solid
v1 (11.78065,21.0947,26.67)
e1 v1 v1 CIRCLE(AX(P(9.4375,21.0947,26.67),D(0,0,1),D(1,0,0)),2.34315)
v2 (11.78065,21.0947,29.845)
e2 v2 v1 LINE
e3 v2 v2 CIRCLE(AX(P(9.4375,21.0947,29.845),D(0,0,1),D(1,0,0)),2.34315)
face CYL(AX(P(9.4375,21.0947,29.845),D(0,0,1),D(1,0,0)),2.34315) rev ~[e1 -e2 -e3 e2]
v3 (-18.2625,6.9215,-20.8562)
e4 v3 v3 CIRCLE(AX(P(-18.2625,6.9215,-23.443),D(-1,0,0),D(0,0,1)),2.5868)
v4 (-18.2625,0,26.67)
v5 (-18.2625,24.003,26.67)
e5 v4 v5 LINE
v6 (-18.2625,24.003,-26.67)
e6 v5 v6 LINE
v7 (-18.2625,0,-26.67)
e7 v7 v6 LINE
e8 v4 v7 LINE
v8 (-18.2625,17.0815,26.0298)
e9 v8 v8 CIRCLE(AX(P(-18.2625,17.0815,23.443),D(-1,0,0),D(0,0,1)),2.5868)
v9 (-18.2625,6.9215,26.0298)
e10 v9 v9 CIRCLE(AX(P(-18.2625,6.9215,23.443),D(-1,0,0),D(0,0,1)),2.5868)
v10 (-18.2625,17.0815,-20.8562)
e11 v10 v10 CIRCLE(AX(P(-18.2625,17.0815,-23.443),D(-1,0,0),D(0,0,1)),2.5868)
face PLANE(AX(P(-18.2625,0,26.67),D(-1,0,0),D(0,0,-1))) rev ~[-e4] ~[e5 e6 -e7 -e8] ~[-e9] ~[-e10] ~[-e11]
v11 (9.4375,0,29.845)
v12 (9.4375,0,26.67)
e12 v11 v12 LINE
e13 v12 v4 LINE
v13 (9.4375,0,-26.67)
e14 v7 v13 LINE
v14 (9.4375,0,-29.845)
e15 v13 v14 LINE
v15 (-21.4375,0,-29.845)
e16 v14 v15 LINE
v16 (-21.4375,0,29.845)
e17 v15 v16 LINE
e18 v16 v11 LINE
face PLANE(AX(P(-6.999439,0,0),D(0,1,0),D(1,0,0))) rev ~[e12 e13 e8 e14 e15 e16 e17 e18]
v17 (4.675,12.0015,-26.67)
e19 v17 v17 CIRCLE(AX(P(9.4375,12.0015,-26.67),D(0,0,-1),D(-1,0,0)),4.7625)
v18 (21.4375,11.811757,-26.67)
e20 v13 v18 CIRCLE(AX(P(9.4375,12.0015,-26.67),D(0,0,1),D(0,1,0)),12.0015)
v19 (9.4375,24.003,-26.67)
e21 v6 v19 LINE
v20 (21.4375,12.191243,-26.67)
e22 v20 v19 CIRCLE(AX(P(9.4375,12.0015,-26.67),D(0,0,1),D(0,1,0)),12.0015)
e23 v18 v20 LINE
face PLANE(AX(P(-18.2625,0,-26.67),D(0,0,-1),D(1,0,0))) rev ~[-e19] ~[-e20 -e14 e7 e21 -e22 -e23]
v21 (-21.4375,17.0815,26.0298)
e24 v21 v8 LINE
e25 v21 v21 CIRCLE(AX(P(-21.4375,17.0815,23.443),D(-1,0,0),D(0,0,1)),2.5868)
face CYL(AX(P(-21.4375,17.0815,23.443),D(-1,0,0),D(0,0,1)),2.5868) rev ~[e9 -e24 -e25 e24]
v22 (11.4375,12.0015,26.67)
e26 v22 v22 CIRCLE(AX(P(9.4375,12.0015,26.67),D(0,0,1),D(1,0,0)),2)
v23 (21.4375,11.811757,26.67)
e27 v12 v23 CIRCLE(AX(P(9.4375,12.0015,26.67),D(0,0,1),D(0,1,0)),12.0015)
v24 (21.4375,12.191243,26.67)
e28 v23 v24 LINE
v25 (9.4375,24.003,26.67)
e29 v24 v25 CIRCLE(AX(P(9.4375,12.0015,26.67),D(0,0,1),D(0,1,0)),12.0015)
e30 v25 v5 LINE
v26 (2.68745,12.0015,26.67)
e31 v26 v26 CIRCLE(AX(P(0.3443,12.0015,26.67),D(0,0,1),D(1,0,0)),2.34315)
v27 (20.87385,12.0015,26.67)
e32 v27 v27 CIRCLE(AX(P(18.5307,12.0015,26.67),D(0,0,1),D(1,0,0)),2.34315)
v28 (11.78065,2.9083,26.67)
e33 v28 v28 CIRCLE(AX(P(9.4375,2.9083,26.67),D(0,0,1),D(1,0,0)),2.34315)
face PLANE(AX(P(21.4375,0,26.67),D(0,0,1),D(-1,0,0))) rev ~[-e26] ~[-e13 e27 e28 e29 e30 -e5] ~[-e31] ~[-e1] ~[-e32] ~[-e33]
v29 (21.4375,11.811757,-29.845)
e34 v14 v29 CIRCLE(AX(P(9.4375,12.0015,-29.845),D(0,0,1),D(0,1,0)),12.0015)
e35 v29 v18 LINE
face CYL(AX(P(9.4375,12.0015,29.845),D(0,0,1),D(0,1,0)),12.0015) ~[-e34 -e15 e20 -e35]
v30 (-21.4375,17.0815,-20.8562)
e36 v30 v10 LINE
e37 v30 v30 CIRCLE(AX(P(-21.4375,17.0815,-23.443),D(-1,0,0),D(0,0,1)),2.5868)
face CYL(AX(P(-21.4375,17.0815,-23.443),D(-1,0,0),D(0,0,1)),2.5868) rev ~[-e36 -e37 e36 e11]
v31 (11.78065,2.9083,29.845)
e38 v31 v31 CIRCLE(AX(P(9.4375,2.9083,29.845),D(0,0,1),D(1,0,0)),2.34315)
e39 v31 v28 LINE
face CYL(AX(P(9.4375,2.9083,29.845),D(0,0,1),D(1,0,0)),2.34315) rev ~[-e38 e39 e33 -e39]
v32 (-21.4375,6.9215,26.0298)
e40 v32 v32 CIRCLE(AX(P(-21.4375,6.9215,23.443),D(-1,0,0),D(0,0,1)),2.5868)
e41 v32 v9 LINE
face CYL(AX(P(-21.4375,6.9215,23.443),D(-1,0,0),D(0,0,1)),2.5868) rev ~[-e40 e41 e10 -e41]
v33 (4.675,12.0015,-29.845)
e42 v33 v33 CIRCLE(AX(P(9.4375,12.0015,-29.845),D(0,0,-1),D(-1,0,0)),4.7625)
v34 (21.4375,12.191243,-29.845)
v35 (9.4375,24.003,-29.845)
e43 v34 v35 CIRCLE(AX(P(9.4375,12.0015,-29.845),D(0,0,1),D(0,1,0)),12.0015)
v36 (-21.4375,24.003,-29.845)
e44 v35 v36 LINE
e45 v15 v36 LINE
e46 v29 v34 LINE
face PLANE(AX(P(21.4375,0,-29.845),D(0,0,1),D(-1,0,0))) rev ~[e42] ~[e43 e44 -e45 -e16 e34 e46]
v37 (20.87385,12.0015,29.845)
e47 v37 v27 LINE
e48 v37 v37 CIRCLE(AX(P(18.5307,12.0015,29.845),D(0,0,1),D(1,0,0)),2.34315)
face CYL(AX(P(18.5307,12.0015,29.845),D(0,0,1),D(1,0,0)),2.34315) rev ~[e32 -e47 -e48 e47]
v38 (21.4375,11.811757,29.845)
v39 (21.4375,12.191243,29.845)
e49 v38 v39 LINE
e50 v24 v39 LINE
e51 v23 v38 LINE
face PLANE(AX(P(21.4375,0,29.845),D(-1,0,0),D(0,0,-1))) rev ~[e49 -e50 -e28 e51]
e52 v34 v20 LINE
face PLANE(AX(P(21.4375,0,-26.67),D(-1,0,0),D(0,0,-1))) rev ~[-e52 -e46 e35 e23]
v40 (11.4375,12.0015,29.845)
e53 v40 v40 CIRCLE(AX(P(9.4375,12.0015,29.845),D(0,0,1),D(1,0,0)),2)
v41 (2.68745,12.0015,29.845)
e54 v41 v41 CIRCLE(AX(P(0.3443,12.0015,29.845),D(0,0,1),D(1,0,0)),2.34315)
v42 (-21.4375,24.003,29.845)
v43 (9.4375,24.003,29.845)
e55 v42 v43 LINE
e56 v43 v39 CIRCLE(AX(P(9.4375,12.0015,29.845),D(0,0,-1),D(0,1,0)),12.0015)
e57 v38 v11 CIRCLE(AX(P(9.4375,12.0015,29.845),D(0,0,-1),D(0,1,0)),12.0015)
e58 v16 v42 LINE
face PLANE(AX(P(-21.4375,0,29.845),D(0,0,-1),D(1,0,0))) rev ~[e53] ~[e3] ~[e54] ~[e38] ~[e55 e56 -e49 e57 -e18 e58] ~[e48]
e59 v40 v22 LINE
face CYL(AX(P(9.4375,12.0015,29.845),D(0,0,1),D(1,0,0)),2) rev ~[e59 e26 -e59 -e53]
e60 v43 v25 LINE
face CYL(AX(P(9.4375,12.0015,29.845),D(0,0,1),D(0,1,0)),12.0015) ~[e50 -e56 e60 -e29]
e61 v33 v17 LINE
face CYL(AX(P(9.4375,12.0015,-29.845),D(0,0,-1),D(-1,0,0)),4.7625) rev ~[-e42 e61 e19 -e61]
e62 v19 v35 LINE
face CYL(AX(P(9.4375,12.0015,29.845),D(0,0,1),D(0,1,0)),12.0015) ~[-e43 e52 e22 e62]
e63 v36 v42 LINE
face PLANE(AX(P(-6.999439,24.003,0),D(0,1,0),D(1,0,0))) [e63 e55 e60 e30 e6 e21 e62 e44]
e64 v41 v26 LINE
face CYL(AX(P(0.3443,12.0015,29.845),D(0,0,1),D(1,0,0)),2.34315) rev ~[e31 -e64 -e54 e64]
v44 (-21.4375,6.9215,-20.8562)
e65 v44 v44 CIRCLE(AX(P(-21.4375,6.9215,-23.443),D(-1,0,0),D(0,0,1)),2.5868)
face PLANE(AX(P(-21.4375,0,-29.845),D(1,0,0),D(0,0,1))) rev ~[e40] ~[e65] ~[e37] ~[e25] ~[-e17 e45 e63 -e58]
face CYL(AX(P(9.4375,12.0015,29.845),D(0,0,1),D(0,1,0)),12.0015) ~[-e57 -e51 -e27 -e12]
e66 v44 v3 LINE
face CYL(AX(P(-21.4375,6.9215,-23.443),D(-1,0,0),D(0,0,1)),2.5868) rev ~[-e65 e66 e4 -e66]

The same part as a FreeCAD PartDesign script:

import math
import FreeCAD as App
import Part
import Sketcher

V = App.Vector
Q = App.Units.Quantity


def add_polygon(sketch, points):
    """Adds a closed chain of lines whose ends are joined by coincident constraints."""
    first, n = sketch.GeometryCount, len(points)
    for a, b in zip(points, points[1:] + points[:1]):
        sketch.addGeometry(Part.LineSegment(App.Vector(*a, 0), App.Vector(*b, 0)), False)
    for i in range(n):
        sketch.addConstraint(Sketcher.Constraint("Coincident", first + i, 2, first + (i + 1) % n, 1))

doc = App.newDocument("Part")
body = doc.addObject("PartDesign::Body", "Body")

# Sketch on XZ plane
sketch1 = body.newObject("Sketcher::SketchObject", "Sketch")
sketch1.AttachmentSupport = (doc.getObject("XZ_Plane"), [""])
sketch1.MapMode = "FlatFace"
add_polygon(sketch1, [(-21.4375, 29.845), (21.4375, 29.845), (21.4375, 26.67), (-18.2625, 26.67), (-18.2625, -26.67), (21.4375, -26.67), (21.4375, -29.845), (-21.4375, -29.845)])  # lines 0-7
sketch1.addConstraint(Sketcher.Constraint("Horizontal", 0))
sketch1.addConstraint(Sketcher.Constraint("Vertical", 1))
sketch1.addConstraint(Sketcher.Constraint("Horizontal", 2))
sketch1.addConstraint(Sketcher.Constraint("Vertical", 3))
sketch1.addConstraint(Sketcher.Constraint("Horizontal", 4))
sketch1.addConstraint(Sketcher.Constraint("Vertical", 5))
sketch1.addConstraint(Sketcher.Constraint("Horizontal", 6))
sketch1.addConstraint(Sketcher.Constraint("Vertical", 7))
sketch1.addConstraint(Sketcher.Constraint("Symmetric", 0, 2, 6, 2, -1, 1))
sketch1.addConstraint(Sketcher.Constraint("Symmetric", 1, 2, 4, 2, -1))
sketch1.addConstraint(Sketcher.Constraint("DistanceY", 3, 2, 3, 1, Q("2.1 in")))
sketch1.addConstraint(Sketcher.Constraint("DistanceY", 7, 1, 7, 2, Q("2.35 in")))
sketch1.addConstraint(Sketcher.Constraint("DistanceX", 6, 2, 3, 2, Q("0.125 in")))
sketch1.addConstraint(Sketcher.Constraint("DistanceX", 0, 1, 0, 2, 42.875))
pad1 = body.newObject("PartDesign::Pad", "Pad")
pad1.Profile = sketch1
pad1.Length = Q("0.945 in")
pad1.Reversed = True

# Sketch on XY plane
sketch2 = body.newObject("Sketcher::SketchObject", "Sketch001")
sketch2.AttachmentSupport = (doc.getObject("XY_Plane"), [""])
sketch2.MapMode = "FlatFace"
sketch2.AttachmentOffset = App.Placement(V(0, 0, 1.175 * 25.4), App.Rotation())
sketch2.addGeometry(Part.ArcOfCircle(Part.Circle(V(9.4375, 12.0015, 0), V(0, 0, 1), 12.0015), math.radians(-90), math.radians(90)), False)
sketch2.addGeometry(Part.LineSegment(V(9.4375, 0, 0), V(307.323857, 0, 0)), False)
sketch2.addGeometry(Part.LineSegment(V(307.323857, 0, 0), V(307.323857, 24.003, 0)), False)
sketch2.addGeometry(Part.LineSegment(V(307.323857, 24.003, 0), V(9.4375, 24.003, 0)), False)
sketch2.addConstraint(Sketcher.Constraint("Tangent", 0, 1, 1, 1))
sketch2.addConstraint(Sketcher.Constraint("Coincident", 1, 2, 2, 1))
sketch2.addConstraint(Sketcher.Constraint("Coincident", 2, 2, 3, 1))
sketch2.addConstraint(Sketcher.Constraint("Tangent", 3, 2, 0, 2))
sketch2.addConstraint(Sketcher.Constraint("Horizontal", 1))
sketch2.addConstraint(Sketcher.Constraint("Vertical", 2))
sketch2.addConstraint(Sketcher.Constraint("Horizontal", 3))
sketch2.addConstraint(Sketcher.Constraint("PointOnObject", 0, 1, -1))
sketch2.addConstraint(Sketcher.Constraint("Radius", 0, Q("0.4725 in")))
sketch2.addConstraint(Sketcher.Constraint("DistanceX", -1, 1, 0, 3, 9.4375))
sketch2.addConstraint(Sketcher.Constraint("DistanceX", 1, 1, 1, 2, 297.886357))
pocket1 = body.newObject("PartDesign::Pocket", "Pocket")
pocket1.Profile = sketch2
pocket1.Type = "ThroughAll"

# Sketch on XY plane
sketch3 = body.newObject("Sketcher::SketchObject", "Sketch002")
sketch3.AttachmentSupport = (doc.getObject("XY_Plane"), [""])
sketch3.MapMode = "FlatFace"
sketch3.AttachmentOffset = App.Placement(V(0, 0, 1.175 * 25.4), App.Rotation())
sketch3.addGeometry(Part.Circle(V(9.4375, 12.0015, 0), V(0, 0, 1), 2), False)
sketch3.addConstraint(Sketcher.Constraint("Diameter", 0, 4.0))
sketch3.addConstraint(Sketcher.Constraint("DistanceY", -1, 1, 0, 3, Q("0.4725 in")))
sketch3.addConstraint(Sketcher.Constraint("DistanceX", -1, 1, 0, 3, 9.4375))
pocket2 = body.newObject("PartDesign::Pocket", "Pocket001")
pocket2.Profile = sketch3
pocket2.Type = "UpToFirst"

# Sketch on XY plane
sketch4 = body.newObject("Sketcher::SketchObject", "Sketch003")
sketch4.AttachmentSupport = (doc.getObject("XY_Plane"), [""])
sketch4.MapMode = "FlatFace"
sketch4.AttachmentOffset = App.Placement(V(0, 0, 1.175 * 25.4), App.Rotation())
sketch4.addGeometry(Part.Circle(V(9.4375, 21.0947, 0), V(0, 0, 1), 2.34315), False)
sketch4.addConstraint(Sketcher.Constraint("Diameter", 0, Q("0.1845 in")))
sketch4.addConstraint(Sketcher.Constraint("DistanceY", -1, 1, 0, 3, Q("0.8305 in")))
sketch4.addConstraint(Sketcher.Constraint("DistanceX", -1, 1, 0, 3, 9.4375))
pocket3 = body.newObject("PartDesign::Pocket", "Pocket002")
pocket3.Profile = sketch4
pocket3.Type = "UpToFirst"

# Sketch on XY plane
sketch5 = body.newObject("Sketcher::SketchObject", "Sketch004")
sketch5.AttachmentSupport = (doc.getObject("XY_Plane"), [""])
sketch5.MapMode = "FlatFace"
sketch5.AttachmentOffset = App.Placement(V(0, 0, 1.175 * 25.4), App.Rotation())
sketch5.addGeometry(Part.Circle(V(18.5307, 12.0015, 0), V(0, 0, 1), 2.34315), False)
sketch5.addConstraint(Sketcher.Constraint("Diameter", 0, Q("0.1845 in")))
sketch5.addConstraint(Sketcher.Constraint("DistanceY", -1, 1, 0, 3, Q("0.4725 in")))
sketch5.addConstraint(Sketcher.Constraint("DistanceX", -1, 1, 0, 3, 18.5307))
pocket4 = body.newObject("PartDesign::Pocket", "Pocket003")
pocket4.Profile = sketch5
pocket4.Type = "UpToFirst"

# Sketch on XY plane
sketch6 = body.newObject("Sketcher::SketchObject", "Sketch005")
sketch6.AttachmentSupport = (doc.getObject("XY_Plane"), [""])
sketch6.MapMode = "FlatFace"
sketch6.AttachmentOffset = App.Placement(V(0, 0, 1.175 * 25.4), App.Rotation())
sketch6.addGeometry(Part.Circle(V(9.4375, 2.9083, 0), V(0, 0, 1), 2.34315), False)
sketch6.addConstraint(Sketcher.Constraint("Diameter", 0, Q("0.1845 in")))
sketch6.addConstraint(Sketcher.Constraint("DistanceY", -1, 1, 0, 3, Q("0.1145 in")))
sketch6.addConstraint(Sketcher.Constraint("DistanceX", -1, 1, 0, 3, 9.4375))
pocket5 = body.newObject("PartDesign::Pocket", "Pocket004")
pocket5.Profile = sketch6
pocket5.Type = "UpToFirst"

# Sketch on XY plane
sketch7 = body.newObject("Sketcher::SketchObject", "Sketch006")
sketch7.AttachmentSupport = (doc.getObject("XY_Plane"), [""])
sketch7.MapMode = "FlatFace"
sketch7.AttachmentOffset = App.Placement(V(0, 0, 1.175 * 25.4), App.Rotation())
sketch7.addGeometry(Part.Circle(V(0.3443, 12.0015, 0), V(0, 0, 1), 2.34315), False)
sketch7.addConstraint(Sketcher.Constraint("Diameter", 0, Q("0.1845 in")))
sketch7.addConstraint(Sketcher.Constraint("DistanceY", -1, 1, 0, 3, Q("0.4725 in")))
sketch7.addConstraint(Sketcher.Constraint("DistanceX", -1, 1, 0, 3, 0.3443))
pocket6 = body.newObject("PartDesign::Pocket", "Pocket005")
pocket6.Profile = sketch7
pocket6.Type = "UpToFirst"

# Sketch on XY plane
sketch8 = body.newObject("Sketcher::SketchObject", "Sketch007")
sketch8.AttachmentSupport = (doc.getObject("XY_Plane"), [""])
sketch8.MapMode = "FlatFace"
sketch8.AttachmentOffset = App.Placement(V(0, 0, -1.175 * 25.4), App.Rotation())
sketch8.addGeometry(Part.Circle(V(9.4375, 12.0015, 0), V(0, 0, 1), 4.7625), False)
sketch8.addConstraint(Sketcher.Constraint("Diameter", 0, Q("0.375 in")))
sketch8.addConstraint(Sketcher.Constraint("DistanceY", -1, 1, 0, 3, Q("0.4725 in")))
sketch8.addConstraint(Sketcher.Constraint("DistanceX", -1, 1, 0, 3, 9.4375))
pocket7 = body.newObject("PartDesign::Pocket", "Pocket006")
pocket7.Profile = sketch8
pocket7.Type = "UpToFirst"
pocket7.Reversed = True

# Sketch on YZ plane
sketch9 = body.newObject("Sketcher::SketchObject", "Sketch008")
sketch9.AttachmentSupport = (doc.getObject("YZ_Plane"), [""])
sketch9.MapMode = "FlatFace"
sketch9.AttachmentOffset = App.Placement(V(0, 0, -21.4375), App.Rotation())
sketch9.addGeometry(Part.Circle(V(17.0815, -23.443, 0), V(0, 0, 1), 2.5868), False)
sketch9.addConstraint(Sketcher.Constraint("Diameter", 0, 5.1736))
sketch9.addConstraint(Sketcher.Constraint("DistanceX", -1, 1, 0, 3, Q("0.6725 in")))
sketch9.addConstraint(Sketcher.Constraint("DistanceY", 0, 3, -1, 1, 23.443))
pocket8 = body.newObject("PartDesign::Pocket", "Pocket007")
pocket8.Profile = sketch9
pocket8.Type = "UpToFirst"
pocket8.Reversed = True

# Sketch on YZ plane
sketch10 = body.newObject("Sketcher::SketchObject", "Sketch009")
sketch10.AttachmentSupport = (doc.getObject("YZ_Plane"), [""])
sketch10.MapMode = "FlatFace"
sketch10.AttachmentOffset = App.Placement(V(0, 0, -21.4375), App.Rotation())
sketch10.addGeometry(Part.Circle(V(6.9215, -23.443, 0), V(0, 0, 1), 2.5868), False)
sketch10.addConstraint(Sketcher.Constraint("Diameter", 0, 5.1736))
sketch10.addConstraint(Sketcher.Constraint("DistanceX", -1, 1, 0, 3, Q("0.2725 in")))
sketch10.addConstraint(Sketcher.Constraint("DistanceY", 0, 3, -1, 1, 23.443))
pocket9 = body.newObject("PartDesign::Pocket", "Pocket008")
pocket9.Profile = sketch10
pocket9.Type = "UpToFirst"
pocket9.Reversed = True

# Sketch on YZ plane
sketch11 = body.newObject("Sketcher::SketchObject", "Sketch010")
sketch11.AttachmentSupport = (doc.getObject("YZ_Plane"), [""])
sketch11.MapMode = "FlatFace"
sketch11.AttachmentOffset = App.Placement(V(0, 0, -21.4375), App.Rotation())
sketch11.addGeometry(Part.Circle(V(6.9215, 23.443, 0), V(0, 0, 1), 2.5868), False)
sketch11.addConstraint(Sketcher.Constraint("Diameter", 0, 5.1736))
sketch11.addConstraint(Sketcher.Constraint("DistanceX", -1, 1, 0, 3, Q("0.2725 in")))
sketch11.addConstraint(Sketcher.Constraint("DistanceY", -1, 1, 0, 3, 23.443))
pocket10 = body.newObject("PartDesign::Pocket", "Pocket009")
pocket10.Profile = sketch11
pocket10.Type = "UpToFirst"
pocket10.Reversed = True

# Sketch on YZ plane
sketch12 = body.newObject("Sketcher::SketchObject", "Sketch011")
sketch12.AttachmentSupport = (doc.getObject("YZ_Plane"), [""])
sketch12.MapMode = "FlatFace"
sketch12.AttachmentOffset = App.Placement(V(0, 0, -21.4375), App.Rotation())
sketch12.addGeometry(Part.Circle(V(17.0815, 23.443, 0), V(0, 0, 1), 2.5868), False)
sketch12.addConstraint(Sketcher.Constraint("Diameter", 0, 5.1736))
sketch12.addConstraint(Sketcher.Constraint("DistanceX", -1, 1, 0, 3, Q("0.6725 in")))
sketch12.addConstraint(Sketcher.Constraint("DistanceY", -1, 1, 0, 3, 23.443))
pocket11 = body.newObject("PartDesign::Pocket", "Pocket010")
pocket11.Profile = sketch12
pocket11.Type = "UpToFirst"
pocket11.Reversed = True

doc.recompute()
